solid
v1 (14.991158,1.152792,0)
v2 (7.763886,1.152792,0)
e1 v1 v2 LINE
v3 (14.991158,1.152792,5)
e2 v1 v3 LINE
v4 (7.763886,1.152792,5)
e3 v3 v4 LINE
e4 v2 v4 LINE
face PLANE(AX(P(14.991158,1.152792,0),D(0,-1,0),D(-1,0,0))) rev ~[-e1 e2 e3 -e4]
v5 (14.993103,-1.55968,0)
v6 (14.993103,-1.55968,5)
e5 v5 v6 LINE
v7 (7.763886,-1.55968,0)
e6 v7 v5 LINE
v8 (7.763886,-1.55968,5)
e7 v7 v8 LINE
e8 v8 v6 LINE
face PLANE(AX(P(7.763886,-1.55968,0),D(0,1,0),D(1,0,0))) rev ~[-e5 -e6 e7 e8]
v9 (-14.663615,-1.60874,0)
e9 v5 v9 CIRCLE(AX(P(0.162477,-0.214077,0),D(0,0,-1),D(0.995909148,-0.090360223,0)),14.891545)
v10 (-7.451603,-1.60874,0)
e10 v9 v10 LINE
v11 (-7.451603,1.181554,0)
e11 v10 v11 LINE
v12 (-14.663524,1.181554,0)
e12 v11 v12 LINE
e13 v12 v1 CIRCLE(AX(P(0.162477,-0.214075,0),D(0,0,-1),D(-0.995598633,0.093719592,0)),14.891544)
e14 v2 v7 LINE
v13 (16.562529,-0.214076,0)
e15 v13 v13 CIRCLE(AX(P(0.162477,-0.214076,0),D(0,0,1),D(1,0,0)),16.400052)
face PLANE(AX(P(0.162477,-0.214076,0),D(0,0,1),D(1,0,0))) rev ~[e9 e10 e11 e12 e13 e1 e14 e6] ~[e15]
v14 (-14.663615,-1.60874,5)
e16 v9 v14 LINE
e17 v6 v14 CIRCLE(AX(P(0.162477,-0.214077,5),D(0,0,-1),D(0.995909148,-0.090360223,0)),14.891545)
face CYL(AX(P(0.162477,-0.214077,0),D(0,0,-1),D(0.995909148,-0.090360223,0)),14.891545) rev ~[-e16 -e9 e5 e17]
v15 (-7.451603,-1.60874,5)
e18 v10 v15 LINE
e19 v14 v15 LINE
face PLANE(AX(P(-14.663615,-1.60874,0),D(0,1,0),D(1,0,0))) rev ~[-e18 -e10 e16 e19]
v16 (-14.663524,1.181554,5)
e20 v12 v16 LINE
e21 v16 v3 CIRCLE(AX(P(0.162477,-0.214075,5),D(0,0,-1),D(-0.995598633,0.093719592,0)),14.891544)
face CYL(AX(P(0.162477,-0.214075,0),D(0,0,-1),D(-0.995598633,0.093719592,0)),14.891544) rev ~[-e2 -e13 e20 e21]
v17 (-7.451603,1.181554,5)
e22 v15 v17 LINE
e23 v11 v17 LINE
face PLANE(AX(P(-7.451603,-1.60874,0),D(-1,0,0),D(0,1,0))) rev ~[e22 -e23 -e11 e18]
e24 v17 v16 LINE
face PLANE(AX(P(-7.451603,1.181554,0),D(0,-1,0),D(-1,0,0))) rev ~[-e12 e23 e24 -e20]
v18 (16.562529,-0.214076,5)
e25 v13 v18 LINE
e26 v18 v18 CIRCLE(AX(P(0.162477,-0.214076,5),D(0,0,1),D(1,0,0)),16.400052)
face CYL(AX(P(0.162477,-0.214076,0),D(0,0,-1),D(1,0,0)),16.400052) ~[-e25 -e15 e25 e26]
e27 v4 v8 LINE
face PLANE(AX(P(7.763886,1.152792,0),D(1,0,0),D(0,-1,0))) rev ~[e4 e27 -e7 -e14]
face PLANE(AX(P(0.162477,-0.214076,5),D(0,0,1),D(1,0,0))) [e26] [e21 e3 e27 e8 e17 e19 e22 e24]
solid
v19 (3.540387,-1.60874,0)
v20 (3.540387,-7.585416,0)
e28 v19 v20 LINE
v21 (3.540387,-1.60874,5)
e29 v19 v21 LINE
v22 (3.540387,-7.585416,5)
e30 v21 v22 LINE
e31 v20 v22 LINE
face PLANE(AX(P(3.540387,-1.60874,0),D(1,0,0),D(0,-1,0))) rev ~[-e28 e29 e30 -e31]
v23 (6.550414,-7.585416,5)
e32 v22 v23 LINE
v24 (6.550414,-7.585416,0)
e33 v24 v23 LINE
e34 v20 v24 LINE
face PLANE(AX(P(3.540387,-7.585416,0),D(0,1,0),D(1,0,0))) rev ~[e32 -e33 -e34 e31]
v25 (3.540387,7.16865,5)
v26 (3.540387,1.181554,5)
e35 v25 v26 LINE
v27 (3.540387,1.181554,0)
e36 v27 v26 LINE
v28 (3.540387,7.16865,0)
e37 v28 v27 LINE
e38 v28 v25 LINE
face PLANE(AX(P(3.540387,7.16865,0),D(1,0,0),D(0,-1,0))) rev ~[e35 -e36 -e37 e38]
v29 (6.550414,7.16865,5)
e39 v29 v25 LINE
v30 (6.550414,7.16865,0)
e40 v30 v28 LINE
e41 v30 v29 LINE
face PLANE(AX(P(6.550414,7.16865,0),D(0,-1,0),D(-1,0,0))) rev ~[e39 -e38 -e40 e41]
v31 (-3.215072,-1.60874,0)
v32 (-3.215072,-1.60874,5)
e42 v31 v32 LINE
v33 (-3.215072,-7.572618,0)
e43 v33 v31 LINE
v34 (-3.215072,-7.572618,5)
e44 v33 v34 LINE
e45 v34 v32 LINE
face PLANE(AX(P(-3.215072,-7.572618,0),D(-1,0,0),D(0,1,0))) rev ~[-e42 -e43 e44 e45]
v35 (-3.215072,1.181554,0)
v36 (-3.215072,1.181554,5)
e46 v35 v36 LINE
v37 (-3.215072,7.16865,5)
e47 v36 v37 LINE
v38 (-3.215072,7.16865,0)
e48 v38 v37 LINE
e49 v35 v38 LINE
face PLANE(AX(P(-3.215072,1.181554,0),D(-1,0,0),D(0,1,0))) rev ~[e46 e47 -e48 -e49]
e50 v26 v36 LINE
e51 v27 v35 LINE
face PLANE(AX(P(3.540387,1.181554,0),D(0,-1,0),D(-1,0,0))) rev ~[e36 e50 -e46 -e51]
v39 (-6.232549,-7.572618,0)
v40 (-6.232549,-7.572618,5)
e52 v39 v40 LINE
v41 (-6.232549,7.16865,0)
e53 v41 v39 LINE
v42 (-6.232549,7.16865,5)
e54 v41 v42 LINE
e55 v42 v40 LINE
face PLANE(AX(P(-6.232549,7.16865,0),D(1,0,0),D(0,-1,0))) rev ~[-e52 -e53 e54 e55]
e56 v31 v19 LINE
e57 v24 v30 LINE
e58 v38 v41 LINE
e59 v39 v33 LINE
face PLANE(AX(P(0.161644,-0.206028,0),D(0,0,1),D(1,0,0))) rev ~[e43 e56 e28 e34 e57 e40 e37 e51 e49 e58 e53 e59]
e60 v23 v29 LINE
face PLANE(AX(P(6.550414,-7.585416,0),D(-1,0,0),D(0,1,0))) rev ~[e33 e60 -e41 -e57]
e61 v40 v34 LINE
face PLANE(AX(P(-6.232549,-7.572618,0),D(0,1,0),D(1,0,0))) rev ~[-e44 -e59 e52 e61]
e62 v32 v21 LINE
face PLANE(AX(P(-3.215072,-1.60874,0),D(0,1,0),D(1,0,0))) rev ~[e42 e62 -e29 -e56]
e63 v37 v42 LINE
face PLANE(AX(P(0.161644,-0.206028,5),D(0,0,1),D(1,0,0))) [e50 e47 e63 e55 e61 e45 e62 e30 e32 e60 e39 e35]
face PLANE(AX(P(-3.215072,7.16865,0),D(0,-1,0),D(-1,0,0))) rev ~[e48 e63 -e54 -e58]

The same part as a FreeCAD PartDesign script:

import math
import FreeCAD as App
import Part
import Sketcher

V = App.Vector
Q = App.Units.Quantity


def add_polygon(sketch, points):
    """Adds a closed chain of lines whose ends are joined by coincident constraints."""
    first, n = sketch.GeometryCount, len(points)
    for a, b in zip(points, points[1:] + points[:1]):
        sketch.addGeometry(Part.LineSegment(App.Vector(*a, 0), App.Vector(*b, 0)), False)
    for i in range(n):
        sketch.addConstraint(Sketcher.Constraint("Coincident", first + i, 2, first + (i + 1) % n, 1))

doc = App.newDocument("Part")
body = doc.addObject("PartDesign::Body", "Body")
body.AllowCompound = True

# Sketch on XY plane
sketch1 = body.newObject("Sketcher::SketchObject", "Sketch")
sketch1.AttachmentSupport = (doc.getObject("XY_Plane"), [""])
sketch1.MapMode = "FlatFace"
sketch1.addGeometry(Part.Circle(V(0.2, -0.2, 0), V(0, 0, 1), 16.4), False)  # 0
sketch1.addGeometry(Part.ArcOfCircle(Part.Circle(V(0.2, -0.2, 0), V(0, 0, 1), 14.9), math.radians(5), math.radians(175)), False)  # 1
sketch1.addGeometry(Part.LineSegment(V(15, 1.2, 0), V(7.8, 1.2, 0)), False)  # 2
sketch1.addGeometry(Part.LineSegment(V(7.8, 1.2, 0), V(7.8, -1.6, 0)), False)  # 3
sketch1.addGeometry(Part.LineSegment(V(7.8, -1.6, 0), V(15, -1.6, 0)), False)  # 4
sketch1.addGeometry(Part.ArcOfCircle(Part.Circle(V(0.2, -0.2, 0), V(0, 0, 1), 14.9), math.radians(-175), math.radians(-5)), False)  # 5
sketch1.addGeometry(Part.LineSegment(V(-14.7, -1.6, 0), V(-7.5, -1.6, 0)), False)  # 6
sketch1.addGeometry(Part.LineSegment(V(-7.5, -1.6, 0), V(-7.5, 1.2, 0)), False)  # 7
sketch1.addGeometry(Part.LineSegment(V(-7.5, 1.2, 0), V(-14.7, 1.2, 0)), False)  # 8
add_polygon(sketch1, [(-3.2, -7.6), (-3.2, -1.6), (3.5, -1.6), (3.5, -7.6), (6.6, -7.6), (6.6, 7.2), (3.5, 7.2), (3.5, 1.2), (-3.2, 1.2), (-3.2, 7.2), (-6.2, 7.2), (-6.2, -7.6)])  # lines 9-20
sketch1.addConstraint(Sketcher.Constraint("Coincident", 1, 1, 2, 1))
sketch1.addConstraint(Sketcher.Constraint("Coincident", 2, 2, 3, 1))
sketch1.addConstraint(Sketcher.Constraint("Coincident", 3, 2, 4, 1))
sketch1.addConstraint(Sketcher.Constraint("Coincident", 4, 2, 5, 2))
sketch1.addConstraint(Sketcher.Constraint("Coincident", 5, 1, 6, 1))
sketch1.addConstraint(Sketcher.Constraint("Coincident", 6, 2, 7, 1))
sketch1.addConstraint(Sketcher.Constraint("Coincident", 7, 2, 8, 1))
sketch1.addConstraint(Sketcher.Constraint("Coincident", 8, 2, 1, 2))
sketch1.addConstraint(Sketcher.Constraint("Horizontal", 2))
sketch1.addConstraint(Sketcher.Constraint("Vertical", 3))
sketch1.addConstraint(Sketcher.Constraint("Horizontal", 4))
sketch1.addConstraint(Sketcher.Constraint("Horizontal", 6))
sketch1.addConstraint(Sketcher.Constraint("Vertical", 7))
sketch1.addConstraint(Sketcher.Constraint("Horizontal", 8))
sketch1.addConstraint(Sketcher.Constraint("Vertical", 9))
sketch1.addConstraint(Sketcher.Constraint("Horizontal", 10))
sketch1.addConstraint(Sketcher.Constraint("Vertical", 11))
sketch1.addConstraint(Sketcher.Constraint("Horizontal", 12))
sketch1.addConstraint(Sketcher.Constraint("Vertical", 13))
sketch1.addConstraint(Sketcher.Constraint("Horizontal", 14))
sketch1.addConstraint(Sketcher.Constraint("Vertical", 15))
sketch1.addConstraint(Sketcher.Constraint("Horizontal", 16))
sketch1.addConstraint(Sketcher.Constraint("Vertical", 17))
sketch1.addConstraint(Sketcher.Constraint("Horizontal", 18))
sketch1.addConstraint(Sketcher.Constraint("Vertical", 19))
sketch1.addConstraint(Sketcher.Constraint("Horizontal", 20))
sketch1.addConstraint(Sketcher.Constraint("Coincident", 1, 3, 0, 3))
sketch1.addConstraint(Sketcher.Constraint("Coincident", 5, 3, 0, 3))
sketch1.addConstraint(Sketcher.Constraint("Equal", 1, 5))
sketch1.addConstraint(Sketcher.Constraint("Horizontal", 6, 2, 9, 2))
sketch1.addConstraint(Sketcher.Constraint("Horizontal", 8, 2, 15, 2))
sketch1.addConstraint(Sketcher.Constraint("Horizontal", 14, 2, 17, 2))
sketch1.addConstraint(Sketcher.Constraint("Vertical", 11, 2, 14, 2))
sketch1.addConstraint(Sketcher.Constraint("Vertical", 9, 2, 16, 2))
sketch1.addConstraint(Sketcher.Constraint("Diameter", 0, Q("32.800104 mm")))
sketch1.addConstraint(Sketcher.Constraint("Radius", 1, Q("14.891544 mm")))
sketch1.addConstraint(Sketcher.Constraint("DistanceX", 8, 2, 0, 3, Q("14.826001 mm")))
sketch1.addConstraint(Sketcher.Constraint("DistanceX", 6, 1, 6, 2, Q("7.212012 mm")))
sketch1.addConstraint(Sketcher.Constraint("DistanceX", 8, 2, 8, 1, Q("7.211921 mm")))
sketch1.addConstraint(Sketcher.Constraint("DistanceX", 10, 1, 10, 2, Q("6.755459 mm")))
sketch1.addConstraint(Sketcher.Constraint("DistanceY", 3, 2, 3, 1, Q("2.712472 mm")))
sketch1.addConstraint(Sketcher.Constraint("DistanceY", 9, 1, 9, 2, Q("5.963878 mm")))
sketch1.addConstraint(Sketcher.Constraint("DistanceY", 19, 2, 19, 1, Q("14.741268 mm")))
sketch1.addConstraint(Sketcher.Constraint("DistanceX", 5, 1, 3, 2, Q("22.427501 mm")))
sketch1.addConstraint(Sketcher.Constraint("DistanceX", 10, 2, 3, 2, Q("4.223499 mm")))
sketch1.addConstraint(Sketcher.Constraint("DistanceY", 11, 2, 20, 2, Q("0.012798 mm")))
sketch1.addConstraint(Sketcher.Constraint("DistanceX", 2, 2, 2, 1, Q("7.227272 mm")))
sketch1.addConstraint(Sketcher.Constraint("DistanceX", 12, 1, 12, 2, Q("3.010027 mm")))
sketch1.addConstraint(Sketcher.Constraint("DistanceX", 18, 2, 18, 1, Q("3.017477 mm")))
sketch1.addConstraint(Sketcher.Constraint("DistanceX", -1, 1, 1, 1, Q("14.991158 mm")))
sketch1.addConstraint(Sketcher.Constraint("DistanceY", 3, 2, -1, 1, Q("1.55968 mm")))
pad1 = body.newObject("PartDesign::Pad", "Pad")
pad1.Profile = sketch1
pad1.Length = 5

doc.recompute()
